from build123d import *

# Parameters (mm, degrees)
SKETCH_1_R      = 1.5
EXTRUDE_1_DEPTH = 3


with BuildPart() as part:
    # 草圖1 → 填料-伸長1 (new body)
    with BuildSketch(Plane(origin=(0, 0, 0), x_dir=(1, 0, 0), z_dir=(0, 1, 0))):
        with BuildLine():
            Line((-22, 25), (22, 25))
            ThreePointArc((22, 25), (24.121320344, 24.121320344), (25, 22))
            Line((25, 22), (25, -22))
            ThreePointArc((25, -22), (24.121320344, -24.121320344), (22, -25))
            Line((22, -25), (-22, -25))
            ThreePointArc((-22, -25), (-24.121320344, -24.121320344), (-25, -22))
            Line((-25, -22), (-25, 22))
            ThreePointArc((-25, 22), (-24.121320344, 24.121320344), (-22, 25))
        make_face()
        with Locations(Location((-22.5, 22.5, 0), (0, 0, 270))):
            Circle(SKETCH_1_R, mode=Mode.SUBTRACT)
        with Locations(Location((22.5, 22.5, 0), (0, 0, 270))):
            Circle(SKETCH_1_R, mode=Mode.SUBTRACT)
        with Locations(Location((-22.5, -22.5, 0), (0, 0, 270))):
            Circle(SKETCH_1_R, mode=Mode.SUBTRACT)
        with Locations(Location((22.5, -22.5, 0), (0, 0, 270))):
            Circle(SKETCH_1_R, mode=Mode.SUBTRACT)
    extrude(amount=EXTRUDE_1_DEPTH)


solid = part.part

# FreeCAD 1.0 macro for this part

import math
import FreeCAD as App
import Part
import Sketcher

doc = App.newDocument("Part")
params = doc.addObject("Spreadsheet::Sheet", "Params")
for row, (alias, value) in enumerate([
    ("sketch1_diameter", "3 mm"),
    ("sketch1_radius", "3 mm"),
    ("sketch1_width", "44 mm"),
    ("pad1_length", "3 mm"),
], start=1):
    params.set(f"A{row}", alias)
    params.set(f"B{row}", "=" + value)
    params.setAlias(f"B{row}", alias)

body = doc.addObject("PartDesign::Body", "Body")

# Sketch on XZ plane
sketch1 = body.newObject("Sketcher::SketchObject", "Sketch")
sketch1.AttachmentSupport = (doc.getObject("XZ_Plane"), [""])
sketch1.MapMode = "FlatFace"
sketch1.addGeometry([
    Part.LineSegment(App.Vector(22, -25, 0), App.Vector(-22, -25, 0)),  # 0
    Part.ArcOfCircle(Part.Circle(App.Vector(-22, -22, 0), App.Vector(0, 0, 1), 3), math.radians(180), math.radians(270)),  # 1
    Part.LineSegment(App.Vector(-25, -22, 0), App.Vector(-25, 22, 0)),  # 2
    Part.ArcOfCircle(Part.Circle(App.Vector(-22, 22, 0), App.Vector(0, 0, 1), 3), math.radians(90), math.radians(180)),  # 3
    Part.LineSegment(App.Vector(-22, 25, 0), App.Vector(22, 25, 0)),  # 4
    Part.ArcOfCircle(Part.Circle(App.Vector(22, 22, 0), App.Vector(0, 0, 1), 3), math.radians(0), math.radians(90)),  # 5
    Part.LineSegment(App.Vector(25, 22, 0), App.Vector(25, -22, 0)),  # 6
    Part.ArcOfCircle(Part.Circle(App.Vector(22, -22, 0), App.Vector(0, 0, 1), 3), math.radians(-90), math.radians(0)),  # 7
    Part.Circle(App.Vector(22.5, 22.5, 0), App.Vector(0, 0, 1), 1.5),  # 8
    Part.Circle(App.Vector(-22.5, 22.5, 0), App.Vector(0, 0, 1), 1.5),  # 9
    Part.Circle(App.Vector(22.5, -22.5, 0), App.Vector(0, 0, 1), 1.5),  # 10
    Part.Circle(App.Vector(-22.5, -22.5, 0), App.Vector(0, 0, 1), 1.5),  # 11
], False)
sketch1.addConstraint([
    Sketcher.Constraint("Tangent", 0, 2, 1, 2),
    Sketcher.Constraint("Tangent", 1, 1, 2, 1),
    Sketcher.Constraint("Tangent", 2, 2, 3, 2),
    Sketcher.Constraint("Tangent", 3, 1, 4, 1),
    Sketcher.Constraint("Tangent", 4, 2, 5, 2),
    Sketcher.Constraint("Tangent", 5, 1, 6, 1),
    Sketcher.Constraint("Tangent", 6, 2, 7, 2),
    Sketcher.Constraint("Tangent", 7, 1, 0, 1),
    Sketcher.Constraint("Horizontal", 0),
    Sketcher.Constraint("Vertical", 2),
    Sketcher.Constraint("Horizontal", 4),
    Sketcher.Constraint("Vertical", 6),
    Sketcher.Constraint("Equal", 1, 3),
    Sketcher.Constraint("Equal", 3, 5),
    Sketcher.Constraint("Equal", 5, 7),
    Sketcher.Constraint("Equal", 8, 9),
    Sketcher.Constraint("Equal", 9, 10),
    Sketcher.Constraint("Equal", 10, 11),
    Sketcher.Constraint("Symmetric", 1, 3, 5, 3, -1, 1),
    Sketcher.Constraint("Symmetric", 9, 3, 10, 3, -1, 1),
    Sketcher.Constraint("Symmetric", 8, 3, 11, 3, -1, 1),
    Sketcher.Constraint("Symmetric", 8, 3, 9, 3, -2),
    Sketcher.Constraint("Equal", 4, 2),
    Sketcher.Constraint("Diameter", 8, 3.0),
    Sketcher.Constraint("Radius", 1, 3.0),
    Sketcher.Constraint("DistanceX", 0, 2, 0, 1, 44.0),
    Sketcher.Constraint("DistanceX", 9, 3, 8, 3, 45.0),
    Sketcher.Constraint("DistanceY", 10, 3, 8, 3, 45.0),
])
sketch1.setExpression("Constraints[23]", "Params.sketch1_diameter")
sketch1.setExpression("Constraints[24]", "Params.sketch1_radius")
sketch1.setExpression("Constraints[25]", "Params.sketch1_width")
pad1 = body.newObject("PartDesign::Pad", "Pad")
pad1.Profile = sketch1
pad1.setExpression("Length", "Params.pad1_length")
pad1.Reversed = True

doc.recompute()
